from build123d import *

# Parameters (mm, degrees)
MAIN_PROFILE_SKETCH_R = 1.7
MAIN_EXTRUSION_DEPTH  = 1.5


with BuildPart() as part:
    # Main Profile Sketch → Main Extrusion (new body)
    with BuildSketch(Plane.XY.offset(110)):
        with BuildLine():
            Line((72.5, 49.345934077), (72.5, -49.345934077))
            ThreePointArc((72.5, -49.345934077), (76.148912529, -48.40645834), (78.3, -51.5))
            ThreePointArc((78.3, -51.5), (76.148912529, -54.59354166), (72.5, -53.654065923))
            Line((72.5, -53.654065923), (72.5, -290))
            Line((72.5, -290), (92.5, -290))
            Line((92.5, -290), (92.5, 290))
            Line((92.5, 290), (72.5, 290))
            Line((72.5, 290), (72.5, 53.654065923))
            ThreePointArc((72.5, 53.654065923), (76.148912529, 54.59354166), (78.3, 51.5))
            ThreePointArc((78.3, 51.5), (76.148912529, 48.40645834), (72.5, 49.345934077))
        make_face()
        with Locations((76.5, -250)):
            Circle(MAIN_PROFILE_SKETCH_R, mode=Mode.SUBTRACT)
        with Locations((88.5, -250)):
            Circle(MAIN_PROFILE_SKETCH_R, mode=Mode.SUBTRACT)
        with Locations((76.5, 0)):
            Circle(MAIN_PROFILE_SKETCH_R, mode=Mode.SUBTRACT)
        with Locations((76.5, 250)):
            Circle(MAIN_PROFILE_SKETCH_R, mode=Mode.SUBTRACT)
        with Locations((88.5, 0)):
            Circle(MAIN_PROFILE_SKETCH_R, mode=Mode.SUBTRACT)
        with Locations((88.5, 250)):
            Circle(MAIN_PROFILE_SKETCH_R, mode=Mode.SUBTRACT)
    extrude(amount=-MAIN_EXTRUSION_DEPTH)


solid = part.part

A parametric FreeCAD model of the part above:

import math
import FreeCAD as App
import Part
import Sketcher

doc = App.newDocument("Part")
body = doc.addObject("PartDesign::Body", "Body")

# Sketch on XY plane
sketch1 = body.newObject("Sketcher::SketchObject", "Sketch")
sketch1.AttachmentSupport = (doc.getObject("XY_Plane"), [""])
sketch1.MapMode = "FlatFace"
sketch1.AttachmentOffset = App.Placement(App.Vector(0, 0, 110), App.Rotation())
sketch1.addGeometry(Part.LineSegment(App.Vector(72.5, 49.345934, 0), App.Vector(72.5, -49.345934, 0)), False)
sketch1.addGeometry(Part.ArcOfCircle(Part.Circle(App.Vector(75, -51.5, 0), App.Vector(0, 0, 1), 3.3), math.radians(0), math.radians(139.250946)), False)
sketch1.addGeometry(Part.ArcOfCircle(Part.Circle(App.Vector(75, -51.5, 0), App.Vector(0, 0, 1), 3.3), math.radians(-139.250946), math.radians(0)), False)
sketch1.addGeometry(Part.LineSegment(App.Vector(72.5, -53.654066, 0), App.Vector(72.5, -290, 0)), False)
sketch1.addGeometry(Part.LineSegment(App.Vector(72.5, -290, 0), App.Vector(92.5, -290, 0)), False)
sketch1.addGeometry(Part.LineSegment(App.Vector(92.5, -290, 0), App.Vector(92.5, 290, 0)), False)
sketch1.addGeometry(Part.LineSegment(App.Vector(92.5, 290, 0), App.Vector(72.5, 290, 0)), False)
sketch1.addGeometry(Part.LineSegment(App.Vector(72.5, 290, 0), App.Vector(72.5, 53.654066, 0)), False)
sketch1.addGeometry(Part.ArcOfCircle(Part.Circle(App.Vector(75, 51.5, 0), App.Vector(0, 0, 1), 3.3), math.radians(0), math.radians(139.250946)), False)
sketch1.addGeometry(Part.ArcOfCircle(Part.Circle(App.Vector(75, 51.5, 0), App.Vector(0, 0, 1), 3.3), math.radians(-139.250946), math.radians(0)), False)
sketch1.addGeometry(Part.Circle(App.Vector(76.5, -250, 0), App.Vector(0, 0, 1), 1.7), False)
sketch1.addGeometry(Part.Circle(App.Vector(88.5, -250, 0), App.Vector(0, 0, 1), 1.7), False)
sketch1.addGeometry(Part.Circle(App.Vector(76.5, 0, 0), App.Vector(0, 0, 1), 1.7), False)
sketch1.addGeometry(Part.Circle(App.Vector(76.5, 250, 0), App.Vector(0, 0, 1), 1.7), False)
sketch1.addGeometry(Part.Circle(App.Vector(88.5, 0, 0), App.Vector(0, 0, 1), 1.7), False)
sketch1.addGeometry(Part.Circle(App.Vector(88.5, 250, 0), App.Vector(0, 0, 1), 1.7), False)
sketch1.addConstraint(Sketcher.Constraint("Coincident", 0, 2, 1, 2))
sketch1.addConstraint(Sketcher.Constraint("Tangent", 1, 1, 2, 2))
sketch1.addConstraint(Sketcher.Constraint("Coincident", 2, 1, 3, 1))
sketch1.addConstraint(Sketcher.Constraint("Coincident", 3, 2, 4, 1))
sketch1.addConstraint(Sketcher.Constraint("Coincident", 4, 2, 5, 1))
sketch1.addConstraint(Sketcher.Constraint("Coincident", 5, 2, 6, 1))
sketch1.addConstraint(Sketcher.Constraint("Coincident", 6, 2, 7, 1))
sketch1.addConstraint(Sketcher.Constraint("Coincident", 7, 2, 8, 2))
sketch1.addConstraint(Sketcher.Constraint("Tangent", 8, 1, 9, 2))
sketch1.addConstraint(Sketcher.Constraint("Coincident", 9, 1, 0, 1))
sketch1.addConstraint(Sketcher.Constraint("Vertical", 0))
sketch1.addConstraint(Sketcher.Constraint("Vertical", 3))
sketch1.addConstraint(Sketcher.Constraint("Horizontal", 4))
sketch1.addConstraint(Sketcher.Constraint("Vertical", 5))
sketch1.addConstraint(Sketcher.Constraint("Horizontal", 6))
sketch1.addConstraint(Sketcher.Constraint("Vertical", 7))
sketch1.addConstraint(Sketcher.Constraint("Equal", 1, 2))
sketch1.addConstraint(Sketcher.Constraint("Equal", 2, 8))
sketch1.addConstraint(Sketcher.Constraint("Equal", 8, 9))
sketch1.addConstraint(Sketcher.Constraint("Equal", 10, 11))
sketch1.addConstraint(Sketcher.Constraint("Equal", 11, 12))
sketch1.addConstraint(Sketcher.Constraint("Equal", 12, 13))
sketch1.addConstraint(Sketcher.Constraint("Equal", 13, 14))
sketch1.addConstraint(Sketcher.Constraint("Equal", 14, 15))
sketch1.addConstraint(Sketcher.Constraint("Symmetric", 1, 3, 8, 3, -1))
sketch1.addConstraint(Sketcher.Constraint("Symmetric", 10, 3, 13, 3, -1))
sketch1.addConstraint(Sketcher.Constraint("Symmetric", 11, 3, 15, 3, -1))
sketch1.addConstraint(Sketcher.Constraint("Symmetric", 3, 2, 6, 2, -1))
sketch1.addConstraint(Sketcher.Constraint("PointOnObject", 12, 3, -1))
sketch1.addConstraint(Sketcher.Constraint("PointOnObject", 14, 3, -1))
sketch1.addConstraint(Sketcher.Constraint("Horizontal", 10, 3, 11, 3))
sketch1.addConstraint(Sketcher.Constraint("Horizontal", 2, 3, 1, 1))
sketch1.addConstraint(Sketcher.Constraint("Horizontal", 9, 3, 8, 1))
sketch1.addConstraint(Sketcher.Constraint("Vertical", 10, 3, 12, 3))
sketch1.addConstraint(Sketcher.Constraint("Vertical", 11, 3, 14, 3))
sketch1.addConstraint(Sketcher.Constraint("Vertical", 0, 2, 2, 1))
sketch1.addConstraint(Sketcher.Constraint("Diameter", 10, 3.4))
sketch1.addConstraint(Sketcher.Constraint("Radius", 1, 3.3))
sketch1.addConstraint(Sketcher.Constraint("DistanceX", 4, 1, 4, 2, 20.0))
sketch1.addConstraint(Sketcher.Constraint("DistanceY", 5, 1, 5, 2, 580.0))
sketch1.addConstraint(Sketcher.Constraint("DistanceX", -1, 1, 1, 3, 75.0))
sketch1.addConstraint(Sketcher.Constraint("DistanceY", 10, 3, -1, 1, 250.0))
sketch1.addConstraint(Sketcher.Constraint("DistanceY", 1, 3, 8, 3, 103.0))
sketch1.addConstraint(Sketcher.Constraint("DistanceX", 10, 3, 11, 3, 12.0))
sketch1.addConstraint(Sketcher.Constraint("DistanceX", 0, 2, 12, 3, 4.0))
sketch1.addConstraint(Sketcher.Constraint("DistanceX", -1, 1, 10, 3, 76.5))
pad1 = body.newObject("PartDesign::Pad", "Pad")
pad1.Profile = sketch1
pad1.Length = 1.5
pad1.Reversed = True

doc.recompute()
